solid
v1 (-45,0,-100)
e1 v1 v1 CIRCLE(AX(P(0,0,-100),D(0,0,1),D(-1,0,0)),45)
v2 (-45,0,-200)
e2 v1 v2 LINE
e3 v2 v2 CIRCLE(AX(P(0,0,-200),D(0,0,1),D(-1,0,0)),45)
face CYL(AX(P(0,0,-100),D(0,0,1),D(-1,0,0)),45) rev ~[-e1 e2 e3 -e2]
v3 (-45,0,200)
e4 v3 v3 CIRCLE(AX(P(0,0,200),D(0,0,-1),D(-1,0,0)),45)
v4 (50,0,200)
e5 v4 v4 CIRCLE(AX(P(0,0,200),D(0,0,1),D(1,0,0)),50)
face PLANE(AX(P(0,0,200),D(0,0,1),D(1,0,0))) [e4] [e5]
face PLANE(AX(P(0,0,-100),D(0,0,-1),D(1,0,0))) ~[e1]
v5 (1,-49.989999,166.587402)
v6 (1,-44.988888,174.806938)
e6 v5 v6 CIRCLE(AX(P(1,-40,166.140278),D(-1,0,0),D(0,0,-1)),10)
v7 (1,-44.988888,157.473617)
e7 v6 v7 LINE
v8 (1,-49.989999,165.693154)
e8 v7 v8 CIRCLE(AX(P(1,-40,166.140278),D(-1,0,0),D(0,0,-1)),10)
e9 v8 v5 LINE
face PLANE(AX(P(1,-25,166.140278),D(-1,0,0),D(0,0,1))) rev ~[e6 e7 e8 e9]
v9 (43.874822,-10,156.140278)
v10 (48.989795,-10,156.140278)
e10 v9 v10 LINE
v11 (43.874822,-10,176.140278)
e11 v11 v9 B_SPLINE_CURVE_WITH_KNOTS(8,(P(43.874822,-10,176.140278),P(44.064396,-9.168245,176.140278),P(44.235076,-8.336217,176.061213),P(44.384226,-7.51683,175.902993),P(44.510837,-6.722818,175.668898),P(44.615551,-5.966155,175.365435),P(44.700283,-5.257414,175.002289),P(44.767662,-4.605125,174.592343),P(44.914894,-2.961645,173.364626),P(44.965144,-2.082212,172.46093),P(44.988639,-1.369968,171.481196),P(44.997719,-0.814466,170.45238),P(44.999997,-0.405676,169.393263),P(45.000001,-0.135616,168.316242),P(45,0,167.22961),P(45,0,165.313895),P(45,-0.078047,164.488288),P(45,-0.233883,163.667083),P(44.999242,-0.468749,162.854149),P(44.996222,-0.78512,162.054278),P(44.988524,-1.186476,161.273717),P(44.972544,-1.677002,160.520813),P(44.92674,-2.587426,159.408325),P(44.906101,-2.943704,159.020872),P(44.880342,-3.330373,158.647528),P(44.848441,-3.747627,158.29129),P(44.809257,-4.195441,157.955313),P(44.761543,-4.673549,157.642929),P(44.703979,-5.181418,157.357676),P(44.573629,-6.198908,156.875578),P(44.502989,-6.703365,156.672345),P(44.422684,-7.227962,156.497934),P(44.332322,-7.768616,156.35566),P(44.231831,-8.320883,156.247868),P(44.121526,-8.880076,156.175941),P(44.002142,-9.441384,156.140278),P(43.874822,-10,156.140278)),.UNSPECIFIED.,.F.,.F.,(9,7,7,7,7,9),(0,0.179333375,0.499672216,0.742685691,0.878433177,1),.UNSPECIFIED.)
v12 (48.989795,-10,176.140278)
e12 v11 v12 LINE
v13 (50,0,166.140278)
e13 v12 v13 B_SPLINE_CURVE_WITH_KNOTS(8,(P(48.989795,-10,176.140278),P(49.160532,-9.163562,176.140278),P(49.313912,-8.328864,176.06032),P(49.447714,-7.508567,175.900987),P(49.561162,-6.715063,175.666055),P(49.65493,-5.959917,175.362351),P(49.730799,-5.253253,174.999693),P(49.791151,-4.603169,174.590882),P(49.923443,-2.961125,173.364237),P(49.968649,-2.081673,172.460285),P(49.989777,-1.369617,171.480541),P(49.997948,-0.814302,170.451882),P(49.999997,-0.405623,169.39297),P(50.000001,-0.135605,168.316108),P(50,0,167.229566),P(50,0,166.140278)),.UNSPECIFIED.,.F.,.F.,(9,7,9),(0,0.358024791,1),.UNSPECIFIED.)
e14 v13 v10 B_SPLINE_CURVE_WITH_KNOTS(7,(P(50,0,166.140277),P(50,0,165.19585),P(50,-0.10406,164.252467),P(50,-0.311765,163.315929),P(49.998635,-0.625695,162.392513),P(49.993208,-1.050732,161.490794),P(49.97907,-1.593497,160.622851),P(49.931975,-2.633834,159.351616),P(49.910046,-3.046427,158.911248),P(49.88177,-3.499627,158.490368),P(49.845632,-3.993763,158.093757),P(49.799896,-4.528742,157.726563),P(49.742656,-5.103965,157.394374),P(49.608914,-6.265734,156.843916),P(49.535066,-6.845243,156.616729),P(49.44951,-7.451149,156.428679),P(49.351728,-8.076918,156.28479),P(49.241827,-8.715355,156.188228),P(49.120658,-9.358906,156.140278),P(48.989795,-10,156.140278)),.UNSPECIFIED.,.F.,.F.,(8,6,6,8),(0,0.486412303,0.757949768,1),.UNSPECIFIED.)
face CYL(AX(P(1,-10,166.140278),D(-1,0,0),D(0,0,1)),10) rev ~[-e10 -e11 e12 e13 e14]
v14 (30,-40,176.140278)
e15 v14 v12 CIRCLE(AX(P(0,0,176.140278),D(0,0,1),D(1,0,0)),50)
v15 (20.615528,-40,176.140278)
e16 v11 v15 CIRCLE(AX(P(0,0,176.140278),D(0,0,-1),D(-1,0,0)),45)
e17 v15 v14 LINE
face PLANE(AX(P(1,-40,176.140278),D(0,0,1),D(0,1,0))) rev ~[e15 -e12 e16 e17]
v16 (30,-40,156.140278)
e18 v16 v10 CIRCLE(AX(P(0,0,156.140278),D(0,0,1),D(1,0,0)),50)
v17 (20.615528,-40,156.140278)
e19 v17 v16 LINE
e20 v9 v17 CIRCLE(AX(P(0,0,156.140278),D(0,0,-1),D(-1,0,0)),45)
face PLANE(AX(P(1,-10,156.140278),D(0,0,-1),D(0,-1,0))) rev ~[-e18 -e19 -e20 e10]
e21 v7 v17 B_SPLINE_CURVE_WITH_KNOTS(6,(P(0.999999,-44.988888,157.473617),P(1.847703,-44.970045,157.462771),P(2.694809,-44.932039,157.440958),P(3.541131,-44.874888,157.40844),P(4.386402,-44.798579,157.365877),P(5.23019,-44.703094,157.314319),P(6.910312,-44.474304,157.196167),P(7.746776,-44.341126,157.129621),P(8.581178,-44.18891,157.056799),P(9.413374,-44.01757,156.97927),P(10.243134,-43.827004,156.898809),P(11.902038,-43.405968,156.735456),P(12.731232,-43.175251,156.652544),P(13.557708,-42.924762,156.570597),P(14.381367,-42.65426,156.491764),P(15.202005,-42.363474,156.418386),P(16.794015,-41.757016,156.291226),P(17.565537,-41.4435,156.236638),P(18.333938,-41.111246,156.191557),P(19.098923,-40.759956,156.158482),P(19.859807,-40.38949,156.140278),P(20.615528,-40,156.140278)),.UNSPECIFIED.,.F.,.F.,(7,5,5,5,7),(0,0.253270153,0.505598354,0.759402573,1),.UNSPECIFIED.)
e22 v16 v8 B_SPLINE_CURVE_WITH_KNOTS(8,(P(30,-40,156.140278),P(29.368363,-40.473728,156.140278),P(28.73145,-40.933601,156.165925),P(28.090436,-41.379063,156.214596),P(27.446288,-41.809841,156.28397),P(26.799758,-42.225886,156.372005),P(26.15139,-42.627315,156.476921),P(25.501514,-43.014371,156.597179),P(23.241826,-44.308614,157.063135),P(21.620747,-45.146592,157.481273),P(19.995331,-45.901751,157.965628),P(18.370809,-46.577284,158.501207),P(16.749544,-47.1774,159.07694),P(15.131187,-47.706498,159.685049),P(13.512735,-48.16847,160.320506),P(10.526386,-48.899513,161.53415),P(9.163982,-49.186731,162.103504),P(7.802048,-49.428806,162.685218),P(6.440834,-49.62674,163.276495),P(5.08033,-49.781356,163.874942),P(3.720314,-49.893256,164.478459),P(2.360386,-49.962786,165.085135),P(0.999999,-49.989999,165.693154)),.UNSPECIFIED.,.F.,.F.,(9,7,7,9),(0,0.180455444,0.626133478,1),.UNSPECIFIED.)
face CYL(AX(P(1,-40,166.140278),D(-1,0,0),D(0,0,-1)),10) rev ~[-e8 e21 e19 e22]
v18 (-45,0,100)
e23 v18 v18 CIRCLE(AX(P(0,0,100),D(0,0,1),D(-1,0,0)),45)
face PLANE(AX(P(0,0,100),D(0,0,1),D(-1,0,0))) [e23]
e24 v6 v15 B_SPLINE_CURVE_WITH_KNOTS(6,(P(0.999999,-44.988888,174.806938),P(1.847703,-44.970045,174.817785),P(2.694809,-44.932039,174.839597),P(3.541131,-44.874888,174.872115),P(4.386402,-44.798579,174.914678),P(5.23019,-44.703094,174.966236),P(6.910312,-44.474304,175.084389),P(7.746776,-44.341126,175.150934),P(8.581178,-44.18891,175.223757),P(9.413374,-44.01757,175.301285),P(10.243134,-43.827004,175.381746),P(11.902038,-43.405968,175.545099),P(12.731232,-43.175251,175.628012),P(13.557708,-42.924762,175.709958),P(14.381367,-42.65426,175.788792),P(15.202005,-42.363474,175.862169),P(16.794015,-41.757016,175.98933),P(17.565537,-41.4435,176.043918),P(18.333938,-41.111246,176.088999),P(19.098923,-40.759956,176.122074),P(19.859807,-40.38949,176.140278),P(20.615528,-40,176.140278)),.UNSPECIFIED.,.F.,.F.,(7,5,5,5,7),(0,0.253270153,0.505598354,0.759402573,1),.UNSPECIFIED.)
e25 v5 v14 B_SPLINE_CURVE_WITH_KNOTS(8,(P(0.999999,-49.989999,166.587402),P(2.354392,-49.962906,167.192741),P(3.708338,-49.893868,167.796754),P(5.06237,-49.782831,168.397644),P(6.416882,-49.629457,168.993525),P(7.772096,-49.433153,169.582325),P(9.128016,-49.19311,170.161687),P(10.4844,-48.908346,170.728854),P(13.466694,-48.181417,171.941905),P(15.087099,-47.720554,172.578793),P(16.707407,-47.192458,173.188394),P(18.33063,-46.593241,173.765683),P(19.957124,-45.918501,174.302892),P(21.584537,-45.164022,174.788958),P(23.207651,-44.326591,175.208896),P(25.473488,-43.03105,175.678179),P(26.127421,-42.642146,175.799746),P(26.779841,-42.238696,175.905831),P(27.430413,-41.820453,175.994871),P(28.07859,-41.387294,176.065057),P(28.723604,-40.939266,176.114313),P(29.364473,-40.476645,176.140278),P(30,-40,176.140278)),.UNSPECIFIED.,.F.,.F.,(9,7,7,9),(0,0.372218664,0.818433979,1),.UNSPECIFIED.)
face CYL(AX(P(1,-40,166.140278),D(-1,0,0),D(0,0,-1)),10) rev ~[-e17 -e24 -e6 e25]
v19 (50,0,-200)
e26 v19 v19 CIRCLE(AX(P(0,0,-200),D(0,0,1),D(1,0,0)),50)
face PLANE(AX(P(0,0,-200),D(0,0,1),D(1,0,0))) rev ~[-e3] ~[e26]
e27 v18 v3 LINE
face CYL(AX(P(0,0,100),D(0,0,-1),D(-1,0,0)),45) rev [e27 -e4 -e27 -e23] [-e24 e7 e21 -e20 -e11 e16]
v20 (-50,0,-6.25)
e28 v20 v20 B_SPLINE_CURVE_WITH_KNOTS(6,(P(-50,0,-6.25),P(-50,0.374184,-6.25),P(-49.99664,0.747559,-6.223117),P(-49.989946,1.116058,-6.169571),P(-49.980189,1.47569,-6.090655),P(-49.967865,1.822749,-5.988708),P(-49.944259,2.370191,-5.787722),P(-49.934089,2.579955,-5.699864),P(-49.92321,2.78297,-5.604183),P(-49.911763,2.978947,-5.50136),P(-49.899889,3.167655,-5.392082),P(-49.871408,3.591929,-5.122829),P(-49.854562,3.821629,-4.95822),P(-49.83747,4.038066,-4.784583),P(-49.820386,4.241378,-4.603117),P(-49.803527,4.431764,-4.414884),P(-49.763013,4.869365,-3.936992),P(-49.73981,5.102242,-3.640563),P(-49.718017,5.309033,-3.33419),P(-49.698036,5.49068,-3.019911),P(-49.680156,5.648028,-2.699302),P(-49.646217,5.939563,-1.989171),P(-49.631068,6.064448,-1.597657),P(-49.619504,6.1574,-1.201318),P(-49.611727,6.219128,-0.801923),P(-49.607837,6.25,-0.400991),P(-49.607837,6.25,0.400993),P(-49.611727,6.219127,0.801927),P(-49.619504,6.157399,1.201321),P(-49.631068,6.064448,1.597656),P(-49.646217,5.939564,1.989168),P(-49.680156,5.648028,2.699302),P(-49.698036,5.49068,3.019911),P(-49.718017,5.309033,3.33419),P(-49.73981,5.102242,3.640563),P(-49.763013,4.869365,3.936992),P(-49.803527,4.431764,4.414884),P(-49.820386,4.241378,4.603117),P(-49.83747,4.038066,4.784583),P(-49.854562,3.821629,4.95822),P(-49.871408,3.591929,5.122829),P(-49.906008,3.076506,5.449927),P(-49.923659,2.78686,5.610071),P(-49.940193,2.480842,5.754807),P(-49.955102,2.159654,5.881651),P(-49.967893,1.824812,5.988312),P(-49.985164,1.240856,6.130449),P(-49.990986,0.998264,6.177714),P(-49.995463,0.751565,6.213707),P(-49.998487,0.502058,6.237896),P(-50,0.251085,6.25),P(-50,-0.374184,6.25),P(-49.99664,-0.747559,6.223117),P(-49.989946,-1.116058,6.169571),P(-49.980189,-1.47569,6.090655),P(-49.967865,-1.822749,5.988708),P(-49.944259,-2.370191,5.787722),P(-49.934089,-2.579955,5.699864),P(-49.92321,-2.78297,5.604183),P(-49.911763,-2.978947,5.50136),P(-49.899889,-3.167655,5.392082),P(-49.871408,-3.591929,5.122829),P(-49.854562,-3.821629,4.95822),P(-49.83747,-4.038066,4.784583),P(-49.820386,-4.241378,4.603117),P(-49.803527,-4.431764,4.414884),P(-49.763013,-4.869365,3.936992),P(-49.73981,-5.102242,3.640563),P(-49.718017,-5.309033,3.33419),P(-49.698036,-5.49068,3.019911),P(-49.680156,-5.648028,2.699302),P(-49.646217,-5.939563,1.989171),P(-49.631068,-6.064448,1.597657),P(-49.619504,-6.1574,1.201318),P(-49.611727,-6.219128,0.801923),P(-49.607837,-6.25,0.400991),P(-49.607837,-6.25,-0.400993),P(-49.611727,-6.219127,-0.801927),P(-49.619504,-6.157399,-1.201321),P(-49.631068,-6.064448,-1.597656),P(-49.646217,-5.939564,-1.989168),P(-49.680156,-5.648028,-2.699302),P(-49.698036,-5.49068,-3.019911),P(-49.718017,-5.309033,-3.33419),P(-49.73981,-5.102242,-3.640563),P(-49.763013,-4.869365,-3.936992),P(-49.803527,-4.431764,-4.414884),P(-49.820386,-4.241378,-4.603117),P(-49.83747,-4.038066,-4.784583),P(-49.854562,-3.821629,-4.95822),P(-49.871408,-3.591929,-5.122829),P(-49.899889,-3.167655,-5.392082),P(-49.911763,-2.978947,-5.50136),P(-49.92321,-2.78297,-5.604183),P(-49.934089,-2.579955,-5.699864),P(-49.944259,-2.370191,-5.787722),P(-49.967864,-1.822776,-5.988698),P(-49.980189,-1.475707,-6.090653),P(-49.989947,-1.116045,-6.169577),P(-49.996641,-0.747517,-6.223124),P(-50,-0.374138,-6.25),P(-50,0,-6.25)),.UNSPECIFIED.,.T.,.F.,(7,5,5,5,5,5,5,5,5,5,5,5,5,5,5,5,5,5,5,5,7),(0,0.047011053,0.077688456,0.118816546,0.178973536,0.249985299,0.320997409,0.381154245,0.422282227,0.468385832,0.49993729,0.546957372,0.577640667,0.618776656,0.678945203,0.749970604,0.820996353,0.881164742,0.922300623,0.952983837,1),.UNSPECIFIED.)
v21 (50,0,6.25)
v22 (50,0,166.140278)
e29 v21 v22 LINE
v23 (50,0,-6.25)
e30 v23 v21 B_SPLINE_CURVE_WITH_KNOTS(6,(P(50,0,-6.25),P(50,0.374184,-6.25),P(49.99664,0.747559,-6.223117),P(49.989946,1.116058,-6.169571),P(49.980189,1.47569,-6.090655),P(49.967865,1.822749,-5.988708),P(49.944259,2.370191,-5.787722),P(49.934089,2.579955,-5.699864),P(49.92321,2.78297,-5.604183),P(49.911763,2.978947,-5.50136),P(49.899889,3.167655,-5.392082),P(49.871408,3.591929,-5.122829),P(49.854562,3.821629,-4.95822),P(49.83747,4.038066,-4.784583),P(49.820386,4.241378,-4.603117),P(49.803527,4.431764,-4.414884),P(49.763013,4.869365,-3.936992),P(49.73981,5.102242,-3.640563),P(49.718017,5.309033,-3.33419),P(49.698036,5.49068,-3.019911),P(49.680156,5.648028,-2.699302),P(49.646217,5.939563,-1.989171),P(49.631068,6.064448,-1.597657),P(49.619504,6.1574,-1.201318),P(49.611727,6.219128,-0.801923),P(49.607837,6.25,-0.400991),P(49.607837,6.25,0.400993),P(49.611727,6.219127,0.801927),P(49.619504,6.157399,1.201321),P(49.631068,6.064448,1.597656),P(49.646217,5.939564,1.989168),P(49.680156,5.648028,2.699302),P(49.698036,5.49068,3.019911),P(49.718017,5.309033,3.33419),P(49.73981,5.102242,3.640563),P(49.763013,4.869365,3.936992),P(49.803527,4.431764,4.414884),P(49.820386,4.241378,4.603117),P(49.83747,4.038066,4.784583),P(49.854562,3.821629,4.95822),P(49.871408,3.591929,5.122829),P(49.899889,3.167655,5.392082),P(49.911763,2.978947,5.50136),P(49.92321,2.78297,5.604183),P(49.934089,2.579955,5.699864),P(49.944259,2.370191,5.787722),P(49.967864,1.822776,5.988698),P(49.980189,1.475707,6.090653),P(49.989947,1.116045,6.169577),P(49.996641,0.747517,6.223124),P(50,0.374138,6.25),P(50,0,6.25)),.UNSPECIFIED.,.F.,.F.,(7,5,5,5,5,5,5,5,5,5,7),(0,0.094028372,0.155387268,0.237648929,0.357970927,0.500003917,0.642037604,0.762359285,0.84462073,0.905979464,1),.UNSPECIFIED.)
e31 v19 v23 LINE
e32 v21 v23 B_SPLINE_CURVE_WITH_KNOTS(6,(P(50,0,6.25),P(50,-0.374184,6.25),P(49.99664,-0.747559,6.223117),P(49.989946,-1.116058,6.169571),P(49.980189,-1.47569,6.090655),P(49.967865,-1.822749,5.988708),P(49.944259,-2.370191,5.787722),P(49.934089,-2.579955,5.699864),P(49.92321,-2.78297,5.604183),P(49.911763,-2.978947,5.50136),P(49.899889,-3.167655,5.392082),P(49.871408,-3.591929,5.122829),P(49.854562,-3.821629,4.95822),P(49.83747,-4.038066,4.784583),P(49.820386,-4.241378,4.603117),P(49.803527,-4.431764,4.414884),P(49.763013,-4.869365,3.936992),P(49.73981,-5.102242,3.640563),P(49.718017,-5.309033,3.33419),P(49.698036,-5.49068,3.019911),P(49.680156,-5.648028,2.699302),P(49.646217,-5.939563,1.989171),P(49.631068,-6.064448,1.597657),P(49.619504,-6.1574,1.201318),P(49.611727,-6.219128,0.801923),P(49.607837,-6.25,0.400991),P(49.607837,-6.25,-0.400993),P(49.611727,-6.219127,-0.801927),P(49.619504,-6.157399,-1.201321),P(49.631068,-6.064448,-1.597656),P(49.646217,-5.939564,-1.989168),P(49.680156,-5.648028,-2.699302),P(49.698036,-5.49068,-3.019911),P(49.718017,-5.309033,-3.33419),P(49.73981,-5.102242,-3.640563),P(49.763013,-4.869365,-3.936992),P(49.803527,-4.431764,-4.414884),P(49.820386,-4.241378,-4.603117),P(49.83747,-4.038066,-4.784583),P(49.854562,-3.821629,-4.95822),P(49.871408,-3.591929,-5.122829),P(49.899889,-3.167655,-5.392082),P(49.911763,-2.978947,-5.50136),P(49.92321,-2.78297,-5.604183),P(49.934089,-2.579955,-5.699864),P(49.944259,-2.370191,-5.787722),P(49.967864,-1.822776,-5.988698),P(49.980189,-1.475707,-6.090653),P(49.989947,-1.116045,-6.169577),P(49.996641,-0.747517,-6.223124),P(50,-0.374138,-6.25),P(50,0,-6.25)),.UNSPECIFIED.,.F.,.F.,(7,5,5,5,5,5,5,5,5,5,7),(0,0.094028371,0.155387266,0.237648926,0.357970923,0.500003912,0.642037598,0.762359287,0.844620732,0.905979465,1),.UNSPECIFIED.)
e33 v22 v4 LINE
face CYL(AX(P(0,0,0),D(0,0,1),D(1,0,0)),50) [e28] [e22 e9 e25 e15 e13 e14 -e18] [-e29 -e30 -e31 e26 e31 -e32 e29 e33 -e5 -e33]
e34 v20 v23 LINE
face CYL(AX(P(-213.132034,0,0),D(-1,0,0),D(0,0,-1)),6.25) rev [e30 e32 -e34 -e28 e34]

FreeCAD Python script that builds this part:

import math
import FreeCAD as App
import Part
import Sketcher

V = App.Vector

doc = App.newDocument("Part")
params = doc.addObject("Spreadsheet::Sheet", "Params")
for row, (alias, value) in enumerate([
    ("sketch1_diameter", "100 mm"),
    ("pad1_length", "400 mm"),
    ("sketch2_diameter", "12.5 mm"),
    ("sketch3_diameter", "90 mm"),
    ("pocket2_length", "507.20192 mm"),
    ("sketch4_radius", "10 mm"),
    ("sketch4_width", "30 mm"),
    ("pocket3_length", "230.128785 mm"),
    ("pocket3_length2", "49 mm"),
], start=1):
    params.set(f"A{row}", alias)
    params.set(f"B{row}", "=" + value)
    params.setAlias(f"B{row}", alias)

body = doc.addObject("PartDesign::Body", "Body")

sketch1 = doc.addObject("Sketcher::SketchObject", "Sketch")
body.addObject(sketch1)
sketch1.AttachmentSupport = (doc.XY_Plane, [""])
sketch1.MapMode = "FlatFace"
sketch1.addGeometry(Part.Circle(V(0, 0, 0), V(0, 0, 1), 50), False)
sketch1.addConstraint([
    Sketcher.Constraint("Coincident", 0, 3, -1, 1),
    Sketcher.Constraint("Diameter", 0, 100.0),
])
sketch1.setExpression("Constraints[1]", "Params.sketch1_diameter")
pad1 = doc.addObject("PartDesign::Pad", "Pad")
body.addObject(pad1)
pad1.Profile = sketch1
pad1.setExpression("Length", "Params.pad1_length")
pad1.Midplane = True

sketch2 = doc.addObject("Sketcher::SketchObject", "Sketch001")
body.addObject(sketch2)
sketch2.AttachmentSupport = (doc.YZ_Plane, [""])
sketch2.MapMode = "FlatFace"
sketch2.addGeometry(Part.Circle(V(0, 0, 0), V(0, 0, 1), 6), False)
sketch2.addConstraint([
    Sketcher.Constraint("Coincident", 0, 3, -1, 1),
    Sketcher.Constraint("Diameter", 0, 12.5),
])
sketch2.setExpression("Constraints[1]", "Params.sketch2_diameter")
pocket1 = doc.addObject("PartDesign::Pocket", "Pocket")
body.addObject(pocket1)
pocket1.Profile = sketch2
pocket1.Type = "ThroughAll"
pocket1.Midplane = True

sketch3 = doc.addObject("Sketcher::SketchObject", "Sketch002")
body.addObject(sketch3)
sketch3.AttachmentSupport = (doc.XY_Plane, [""])
sketch3.MapMode = "FlatFace"
sketch3.AttachmentOffset = App.Placement(V(0, 0, 100), App.Rotation())
sketch3.addGeometry(Part.Circle(V(0, 0, 0), V(0, 0, 1), 45), False)
sketch3.addConstraint([
    Sketcher.Constraint("Coincident", 0, 3, -1, 1),
    Sketcher.Constraint("Diameter", 0, 90.0),
])
sketch3.setExpression("Constraints[1]", "Params.sketch3_diameter")
pocket2 = doc.addObject("PartDesign::Pocket", "Pocket001")
body.addObject(pocket2)
pocket2.Profile = sketch3
pocket2.setExpression("Length", "Params.pocket2_length")
pocket2.Reversed = True
doc.recompute()

mirrored = doc.addObject("PartDesign::Mirrored", "Mirrored")
body.addObject(mirrored)
mirrored.Originals = [pocket2]
mirrored.MirrorPlane = (doc.XY_Plane, [""])
body.Tip = mirrored

sketch4 = doc.addObject("Sketcher::SketchObject", "Sketch003")
body.addObject(sketch4)
sketch4.AttachmentSupport = (doc.YZ_Plane, [""])
sketch4.MapMode = "FlatFace"
sketch4.AttachmentOffset = App.Placement(V(0, 0, 50), App.Rotation())
sketch4.addGeometry([
    Part.LineSegment(V(-40, 156, 0), V(-10, 156, 0)),
    Part.ArcOfCircle(Part.Circle(V(-10, 166, 0), V(0, 0, 1), 10), math.radians(-90), math.radians(90)),
    Part.LineSegment(V(-10, 176, 0), V(-40, 176, 0)),
    Part.ArcOfCircle(Part.Circle(V(-40, 166, 0), V(0, 0, 1), 10), math.radians(90), math.radians(270)),
], False)
sketch4.addConstraint([
    Sketcher.Constraint("Tangent", 0, 2, 1, 1),
    Sketcher.Constraint("Tangent", 1, 2, 2, 1),
    Sketcher.Constraint("Tangent", 2, 2, 3, 1),
    Sketcher.Constraint("Tangent", 3, 2, 0, 1),
    Sketcher.Constraint("Horizontal", 0),
    Sketcher.Constraint("Horizontal", 2),
    Sketcher.Constraint("Radius", 1, 10.0),
    Sketcher.Constraint("DistanceX", 0, 1, 0, 2, 30.0),
    Sketcher.Constraint("DistanceX", 1, 3, -1, 1, 10.0),
    Sketcher.Constraint("DistanceY", -1, 1, 1, 3, 166.140278),
])
sketch4.setExpression("Constraints[6]", "Params.sketch4_radius")
sketch4.setExpression("Constraints[7]", "Params.sketch4_width")
pocket3 = doc.addObject("PartDesign::Pocket", "Pocket002")
body.addObject(pocket3)
pocket3.Profile = sketch4
pocket3.Type = "TwoLengths"
pocket3.setExpression("Length", "Params.pocket3_length")
pocket3.setExpression("Length2", "Params.pocket3_length2")
pocket3.Reversed = True

doc.recompute()
